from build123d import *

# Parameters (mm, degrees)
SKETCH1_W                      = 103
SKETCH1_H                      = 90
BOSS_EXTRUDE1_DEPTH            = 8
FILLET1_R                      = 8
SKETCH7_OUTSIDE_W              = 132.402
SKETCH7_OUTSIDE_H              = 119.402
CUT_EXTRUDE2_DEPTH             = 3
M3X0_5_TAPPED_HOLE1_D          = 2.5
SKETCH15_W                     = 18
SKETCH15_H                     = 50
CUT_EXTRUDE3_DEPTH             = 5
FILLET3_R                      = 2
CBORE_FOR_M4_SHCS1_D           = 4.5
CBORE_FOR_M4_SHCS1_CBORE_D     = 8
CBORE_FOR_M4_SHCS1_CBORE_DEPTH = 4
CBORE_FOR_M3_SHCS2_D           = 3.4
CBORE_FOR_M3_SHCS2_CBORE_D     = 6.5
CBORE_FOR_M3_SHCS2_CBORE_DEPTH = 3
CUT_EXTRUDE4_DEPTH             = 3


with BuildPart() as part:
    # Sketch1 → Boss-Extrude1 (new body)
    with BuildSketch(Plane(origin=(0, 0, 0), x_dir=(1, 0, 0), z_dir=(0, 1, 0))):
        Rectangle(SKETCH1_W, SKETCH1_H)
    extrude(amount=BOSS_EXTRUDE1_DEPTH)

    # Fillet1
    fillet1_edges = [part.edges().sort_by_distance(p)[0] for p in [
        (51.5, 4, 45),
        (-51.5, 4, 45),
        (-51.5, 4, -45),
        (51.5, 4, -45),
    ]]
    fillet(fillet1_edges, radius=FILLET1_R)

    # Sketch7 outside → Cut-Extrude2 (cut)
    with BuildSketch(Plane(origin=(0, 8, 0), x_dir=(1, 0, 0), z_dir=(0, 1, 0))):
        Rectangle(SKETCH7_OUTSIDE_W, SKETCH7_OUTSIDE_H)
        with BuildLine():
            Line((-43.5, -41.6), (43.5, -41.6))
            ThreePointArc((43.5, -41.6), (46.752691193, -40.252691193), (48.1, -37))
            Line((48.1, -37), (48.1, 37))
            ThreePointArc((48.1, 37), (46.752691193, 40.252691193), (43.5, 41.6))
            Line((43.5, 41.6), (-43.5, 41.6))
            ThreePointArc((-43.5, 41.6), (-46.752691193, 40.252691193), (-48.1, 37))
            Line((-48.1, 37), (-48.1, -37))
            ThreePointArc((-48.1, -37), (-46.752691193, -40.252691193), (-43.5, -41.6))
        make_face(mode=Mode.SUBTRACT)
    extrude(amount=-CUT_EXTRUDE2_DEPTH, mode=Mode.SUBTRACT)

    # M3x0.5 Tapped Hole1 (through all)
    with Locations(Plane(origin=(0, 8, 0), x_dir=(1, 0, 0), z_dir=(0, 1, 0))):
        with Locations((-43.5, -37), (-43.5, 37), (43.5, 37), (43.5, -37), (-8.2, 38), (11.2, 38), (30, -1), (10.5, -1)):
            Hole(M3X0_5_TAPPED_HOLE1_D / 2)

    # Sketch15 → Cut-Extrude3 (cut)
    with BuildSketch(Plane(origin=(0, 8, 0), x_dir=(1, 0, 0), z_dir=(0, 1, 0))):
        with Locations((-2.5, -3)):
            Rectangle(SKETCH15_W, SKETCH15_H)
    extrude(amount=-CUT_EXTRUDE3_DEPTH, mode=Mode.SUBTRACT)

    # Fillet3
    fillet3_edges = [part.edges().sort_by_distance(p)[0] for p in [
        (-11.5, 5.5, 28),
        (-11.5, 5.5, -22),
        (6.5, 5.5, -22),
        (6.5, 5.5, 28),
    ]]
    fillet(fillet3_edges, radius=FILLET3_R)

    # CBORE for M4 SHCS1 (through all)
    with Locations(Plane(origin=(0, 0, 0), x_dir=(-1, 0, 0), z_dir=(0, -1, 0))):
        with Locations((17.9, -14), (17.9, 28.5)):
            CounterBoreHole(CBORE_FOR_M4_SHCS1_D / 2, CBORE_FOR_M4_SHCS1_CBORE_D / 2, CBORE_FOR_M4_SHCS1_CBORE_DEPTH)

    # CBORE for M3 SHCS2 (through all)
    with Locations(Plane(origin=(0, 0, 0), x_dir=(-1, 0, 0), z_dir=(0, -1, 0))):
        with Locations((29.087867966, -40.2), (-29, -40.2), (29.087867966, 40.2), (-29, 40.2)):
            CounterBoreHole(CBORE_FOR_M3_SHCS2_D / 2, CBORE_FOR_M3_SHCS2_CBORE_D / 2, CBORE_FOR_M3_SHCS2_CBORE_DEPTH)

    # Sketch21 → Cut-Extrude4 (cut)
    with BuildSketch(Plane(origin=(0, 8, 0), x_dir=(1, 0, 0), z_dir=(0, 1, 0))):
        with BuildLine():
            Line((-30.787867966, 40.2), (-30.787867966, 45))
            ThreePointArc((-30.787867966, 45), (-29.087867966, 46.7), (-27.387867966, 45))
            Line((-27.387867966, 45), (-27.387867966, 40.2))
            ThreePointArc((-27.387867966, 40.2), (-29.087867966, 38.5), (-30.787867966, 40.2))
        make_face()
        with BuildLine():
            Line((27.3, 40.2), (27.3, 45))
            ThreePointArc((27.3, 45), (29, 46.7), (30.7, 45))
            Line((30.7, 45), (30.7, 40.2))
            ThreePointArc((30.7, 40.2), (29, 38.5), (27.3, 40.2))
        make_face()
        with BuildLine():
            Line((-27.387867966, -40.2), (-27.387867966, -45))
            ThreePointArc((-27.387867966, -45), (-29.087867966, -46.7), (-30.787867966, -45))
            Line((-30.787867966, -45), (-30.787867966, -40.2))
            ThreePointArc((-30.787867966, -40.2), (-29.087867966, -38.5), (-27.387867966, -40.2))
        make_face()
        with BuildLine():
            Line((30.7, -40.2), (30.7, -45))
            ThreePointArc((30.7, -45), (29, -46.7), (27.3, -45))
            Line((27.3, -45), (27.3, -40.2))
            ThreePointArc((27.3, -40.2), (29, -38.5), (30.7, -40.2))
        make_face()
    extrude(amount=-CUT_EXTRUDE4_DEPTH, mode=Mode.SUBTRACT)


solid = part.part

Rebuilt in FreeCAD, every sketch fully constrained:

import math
import FreeCAD as App
import Part
import Sketcher
from FreeCAD import Vector
Q = App.Units.Quantity


def edges_at(feature, points):
    """Names of the edges that pass closest to the given points."""
    edges = feature.Shape.Edges
    near = lambda p: min(range(len(edges)), key=lambda i: edges[i].distToShape(Part.Vertex(*p))[0])
    return sorted({f"Edge{near(p) + 1}" for p in points})


def add_polygon(sketch, points):
    """Adds a closed chain of lines whose ends are joined by coincident constraints."""
    first, n = sketch.GeometryCount, len(points)
    for a, b in zip(points, points[1:] + points[:1]):
        sketch.addGeometry(Part.LineSegment(App.Vector(*a, 0), App.Vector(*b, 0)), False)
    for i in range(n):
        sketch.addConstraint(Sketcher.Constraint("Coincident", first + i, 2, first + (i + 1) % n, 1))

doc = App.newDocument("Part")
body = doc.addObject("PartDesign::Body", "Body")

# Sketch on XZ plane
sketch1 = body.newObject("Sketcher::SketchObject", "Sketch")
sketch1.AttachmentSupport = (doc.getObject("XZ_Plane"), [""])
sketch1.MapMode = "FlatFace"
add_polygon(sketch1, [(-52, -45), (-52, 45), (52, 45), (52, -45)])  # lines 0-3
sketch1.addConstraint([
    Sketcher.Constraint("Vertical", 0),
    Sketcher.Constraint("Horizontal", 1),
    Sketcher.Constraint("Vertical", 2),
    Sketcher.Constraint("Horizontal", 3),
    Sketcher.Constraint("Symmetric", 0, 2, 2, 2, -1, 1),
    Sketcher.Constraint("DistanceX", 1, 1, 1, 2, Q("103 mm")),
    Sketcher.Constraint("DistanceY", 0, 1, 0, 2, Q("90 mm")),
])
pad1 = body.newObject("PartDesign::Pad", "Pad")
pad1.Profile = sketch1
pad1.Length = 8
pad1.Reversed = True
doc.recompute()

fillet = body.newObject("PartDesign::Fillet", "Fillet")
fillet.Base = (pad1, edges_at(pad1, [
    (51.5, 4, 45),
    (-51.5, 4, 45),
    (-51.5, 4, -45),
    (51.5, 4, -45),
]))
fillet.Radius = 8

# Sketch on XZ plane
sketch2 = body.newObject("Sketcher::SketchObject", "Sketch001")
sketch2.AttachmentSupport = (doc.getObject("XZ_Plane"), [""])
sketch2.MapMode = "FlatFace"
sketch2.AttachmentOffset = App.Placement(Vector(0, 0, -8), App.Rotation())
add_polygon(sketch2, [(-66.2, -59.7), (-66.2, 59.7), (66.2, 59.7), (66.2, -59.7)])  # lines 0-3
sketch2.addGeometry(Part.LineSegment(Vector(43.5, 41.6, 0), Vector(-43.5, 41.6, 0)), False)  # 4
sketch2.addGeometry(Part.ArcOfCircle(Part.Circle(Vector(-43.5, 37, 0), Vector(0, 0, 1), 4.6), math.radians(90), math.radians(180)), False)  # 5
sketch2.addGeometry(Part.LineSegment(Vector(-48.1, 37, 0), Vector(-48.1, -37, 0)), False)  # 6
sketch2.addGeometry(Part.ArcOfCircle(Part.Circle(Vector(-43.5, -37, 0), Vector(0, 0, 1), 4.6), math.radians(-180), math.radians(-90)), False)  # 7
sketch2.addGeometry(Part.LineSegment(Vector(-43.5, -41.6, 0), Vector(43.5, -41.6, 0)), False)  # 8
sketch2.addGeometry(Part.ArcOfCircle(Part.Circle(Vector(43.5, -37, 0), Vector(0, 0, 1), 4.6), math.radians(-90), math.radians(0)), False)  # 9
sketch2.addGeometry(Part.LineSegment(Vector(48.1, -37, 0), Vector(48.1, 37, 0)), False)  # 10
sketch2.addGeometry(Part.ArcOfCircle(Part.Circle(Vector(43.5, 37, 0), Vector(0, 0, 1), 4.6), math.radians(0), math.radians(90)), False)  # 11
sketch2.addConstraint([
    Sketcher.Constraint("Tangent", 4, 2, 5, 1),
    Sketcher.Constraint("Tangent", 5, 2, 6, 1),
    Sketcher.Constraint("Tangent", 6, 2, 7, 1),
    Sketcher.Constraint("Tangent", 7, 2, 8, 1),
    Sketcher.Constraint("Tangent", 8, 2, 9, 1),
    Sketcher.Constraint("Tangent", 9, 2, 10, 1),
    Sketcher.Constraint("Tangent", 10, 2, 11, 1),
    Sketcher.Constraint("Tangent", 11, 2, 4, 1),
    Sketcher.Constraint("Vertical", 0),
    Sketcher.Constraint("Horizontal", 1),
    Sketcher.Constraint("Vertical", 2),
    Sketcher.Constraint("Horizontal", 3),
    Sketcher.Constraint("Horizontal", 4),
    Sketcher.Constraint("Vertical", 6),
    Sketcher.Constraint("Horizontal", 8),
    Sketcher.Constraint("Vertical", 10),
    Sketcher.Constraint("Equal", 5, 7),
    Sketcher.Constraint("Equal", 7, 9),
    Sketcher.Constraint("Equal", 9, 11),
    Sketcher.Constraint("Symmetric", 5, 3, 9, 3, -1, 1),
    Sketcher.Constraint("Symmetric", 0, 2, 2, 2, -1, 1),
    Sketcher.Constraint("Radius", 5, Q("4.6 mm")),
    Sketcher.Constraint("DistanceX", 4, 2, 4, 1, Q("87 mm")),
    Sketcher.Constraint("DistanceY", 6, 2, 6, 1, Q("74 mm")),
    Sketcher.Constraint("DistanceX", 1, 1, 1, 2, Q("132.402 mm")),
    Sketcher.Constraint("DistanceY", 0, 1, 0, 2, Q("119.402 mm")),
])
pocket1 = body.newObject("PartDesign::Pocket", "Pocket")
pocket1.Profile = sketch2
pocket1.Length = 3
pocket1.Reversed = True

# Sketch on XZ plane
sketch3 = body.newObject("Sketcher::SketchObject", "Sketch002")
sketch3.AttachmentSupport = (doc.getObject("XZ_Plane"), [""])
sketch3.MapMode = "FlatFace"
sketch3.AttachmentOffset = App.Placement(Vector(0, 0, -8), App.Rotation())
sketch3.addGeometry([
    Part.Circle(Vector(-43.5, 37, 0), Vector(0, 0, 1), 1.2),  # 0
    Part.Circle(Vector(-43.5, -37, 0), Vector(0, 0, 1), 1.2),  # 1
    Part.Circle(Vector(43.5, -37, 0), Vector(0, 0, 1), 1.2),  # 2
    Part.Circle(Vector(43.5, 37, 0), Vector(0, 0, 1), 1.2),  # 3
    Part.Circle(Vector(-8.2, -38, 0), Vector(0, 0, 1), 1.2),  # 4
    Part.Circle(Vector(11.2, -38, 0), Vector(0, 0, 1), 1.2),  # 5
    Part.Circle(Vector(30, 1, 0), Vector(0, 0, 1), 1.2),  # 6
    Part.Circle(Vector(10.5, 1, 0), Vector(0, 0, 1), 1.2),  # 7
], False)
sketch3.addConstraint([
    Sketcher.Constraint("Equal", 0, 1),
    Sketcher.Constraint("Equal", 1, 2),
    Sketcher.Constraint("Equal", 2, 3),
    Sketcher.Constraint("Equal", 3, 4),
    Sketcher.Constraint("Equal", 4, 5),
    Sketcher.Constraint("Equal", 5, 6),
    Sketcher.Constraint("Equal", 6, 7),
    Sketcher.Constraint("Symmetric", 0, 3, 2, 3, -1, 1),
    Sketcher.Constraint("Symmetric", 1, 3, 3, 3, -1, 1),
    Sketcher.Constraint("Symmetric", 1, 3, 2, 3, -2),
    Sketcher.Constraint("Horizontal", 4, 3, 5, 3),
    Sketcher.Constraint("Horizontal", 6, 3, 7, 3),
    Sketcher.Constraint("Diameter", 0, Q("2.5 mm")),
    Sketcher.Constraint("DistanceY", -1, 1, 0, 3, Q("37 mm")),
    Sketcher.Constraint("DistanceY", 4, 3, -1, 1, Q("38 mm")),
    Sketcher.Constraint("DistanceX", -1, 1, 6, 3, Q("30 mm")),
    Sketcher.Constraint("DistanceY", -1, 1, 6, 3, Q("1 mm")),
    Sketcher.Constraint("DistanceX", 1, 3, 2, 3, Q("87 mm")),
    Sketcher.Constraint("DistanceX", 7, 3, 3, 3, Q("33 mm")),
    Sketcher.Constraint("DistanceX", 4, 3, -1, 1, Q("8.2 mm")),
    Sketcher.Constraint("DistanceX", -1, 1, 5, 3, Q("11.2 mm")),
])
doc.recompute()
hole = body.newObject("PartDesign::Hole", "Hole")
hole.Profile = sketch3
hole.ThreadType = "None"
hole.Diameter = 2.5
hole.DepthType = "ThroughAll"
hole.Reversed = True

# Sketch on XZ plane
sketch4 = body.newObject("Sketcher::SketchObject", "Sketch003")
sketch4.AttachmentSupport = (doc.getObject("XZ_Plane"), [""])
sketch4.MapMode = "FlatFace"
sketch4.AttachmentOffset = App.Placement(Vector(0, 0, -8), App.Rotation())
add_polygon(sketch4, [(-12, -22), (-12, 28), (6, 28), (6, -22)])  # lines 0-3
sketch4.addConstraint([
    Sketcher.Constraint("Vertical", 0),
    Sketcher.Constraint("Horizontal", 1),
    Sketcher.Constraint("Vertical", 2),
    Sketcher.Constraint("Horizontal", 3),
    Sketcher.Constraint("DistanceX", 1, 1, 1, 2, Q("18 mm")),
    Sketcher.Constraint("DistanceY", 0, 1, 0, 2, Q("50 mm")),
    Sketcher.Constraint("DistanceY", -1, 1, 0, 2, Q("28 mm")),
    Sketcher.Constraint("DistanceX", 0, 2, -1, 1, Q("11.5 mm")),
])
pocket2 = body.newObject("PartDesign::Pocket", "Pocket001")
pocket2.Profile = sketch4
pocket2.Length = 5
pocket2.Reversed = True
doc.recompute()

fillet2 = body.newObject("PartDesign::Fillet", "Fillet001")
fillet2.Base = (pocket2, edges_at(pocket2, [
    (-11.5, 5.5, 28),
    (-11.5, 5.5, -22),
    (6.5, 5.5, -22),
    (6.5, 5.5, 28),
]))
fillet2.Radius = 2

# Sketch on XZ plane
sketch5 = body.newObject("Sketcher::SketchObject", "Sketch004")
sketch5.AttachmentSupport = (doc.getObject("XZ_Plane"), [""])
sketch5.MapMode = "FlatFace"
sketch5.addGeometry([
    Part.Circle(Vector(-17.9, 14, 0), Vector(0, 0, 1), 2.2),
    Part.Circle(Vector(-17.9, -28.5, 0), Vector(0, 0, 1), 2.2),
], False)
sketch5.addConstraint([
    Sketcher.Constraint("Equal", 0, 1),
    Sketcher.Constraint("Vertical", 0, 3, 1, 3),
    Sketcher.Constraint("Diameter", 0, Q("4.5 mm")),
    Sketcher.Constraint("DistanceY", -1, 1, 0, 3, Q("14 mm")),
    Sketcher.Constraint("DistanceX", 0, 3, -1, 1, Q("17.9 mm")),
    Sketcher.Constraint("DistanceY", 1, 3, -1, 1, Q("28.5 mm")),
])
doc.recompute()
hole2 = body.newObject("PartDesign::Hole", "Hole001")
hole2.Profile = sketch5
hole2.ThreadType = "None"
hole2.Diameter = 4.5
hole2.DepthType = "ThroughAll"
hole2.HoleCutType = "Counterbore"
hole2.HoleCutDiameter = 8
hole2.HoleCutDepth = 4

# Sketch on XZ plane
sketch6 = body.newObject("Sketcher::SketchObject", "Sketch005")
sketch6.AttachmentSupport = (doc.getObject("XZ_Plane"), [""])
sketch6.MapMode = "FlatFace"
sketch6.addGeometry([
    Part.Circle(Vector(-29.1, 40.2, 0), Vector(0, 0, 1), 1.7),
    Part.Circle(Vector(29, 40.2, 0), Vector(0, 0, 1), 1.7),
    Part.Circle(Vector(-29.1, -40.2, 0), Vector(0, 0, 1), 1.7),
    Part.Circle(Vector(29, -40.2, 0), Vector(0, 0, 1), 1.7),
], False)
sketch6.addConstraint([
    Sketcher.Constraint("Equal", 0, 1),
    Sketcher.Constraint("Equal", 1, 2),
    Sketcher.Constraint("Equal", 2, 3),
    Sketcher.Constraint("Symmetric", 0, 3, 2, 3, -1),
    Sketcher.Constraint("Symmetric", 1, 3, 3, 3, -1),
    Sketcher.Constraint("Horizontal", 0, 3, 1, 3),
    Sketcher.Constraint("Diameter", 0, Q("3.4 mm")),
    Sketcher.Constraint("DistanceX", -1, 1, 1, 3, Q("29 mm")),
    Sketcher.Constraint("DistanceY", -1, 1, 0, 3, Q("40.2 mm")),
    Sketcher.Constraint("DistanceX", 0, 3, -1, 1, Q("29.087868 mm")),
])
doc.recompute()
hole3 = body.newObject("PartDesign::Hole", "Hole002")
hole3.Profile = sketch6
hole3.ThreadType = "None"
hole3.Diameter = 3.4
hole3.DepthType = "ThroughAll"
hole3.HoleCutType = "Counterbore"
hole3.HoleCutDiameter = 6.5
hole3.HoleCutDepth = 3

# Sketch on XZ plane
sketch7 = body.newObject("Sketcher::SketchObject", "Sketch006")
sketch7.AttachmentSupport = (doc.getObject("XZ_Plane"), [""])
sketch7.MapMode = "FlatFace"
sketch7.AttachmentOffset = App.Placement(Vector(0, 0, -8), App.Rotation())
sketch7.addGeometry([
    Part.LineSegment(Vector(-30.8, -45, 0), Vector(-30.8, -40.2, 0)),  # 0
    Part.ArcOfCircle(Part.Circle(Vector(-29.1, -40.2, 0), Vector(0, 0, 1), 1.7), math.radians(0), math.radians(180)),  # 1
    Part.LineSegment(Vector(-27.4, -40.2, 0), Vector(-27.4, -45, 0)),  # 2
    Part.ArcOfCircle(Part.Circle(Vector(-29.1, -45, 0), Vector(0, 0, 1), 1.7), math.radians(180), math.radians(360)),  # 3
    Part.LineSegment(Vector(27.3, -45, 0), Vector(27.3, -40.2, 0)),  # 4
    Part.ArcOfCircle(Part.Circle(Vector(29, -40.2, 0), Vector(0, 0, 1), 1.7), math.radians(0), math.radians(180)),  # 5
    Part.LineSegment(Vector(30.7, -40.2, 0), Vector(30.7, -45, 0)),  # 6
    Part.ArcOfCircle(Part.Circle(Vector(29, -45, 0), Vector(0, 0, 1), 1.7), math.radians(180), math.radians(360)),  # 7
    Part.LineSegment(Vector(-27.4, 45, 0), Vector(-27.4, 40.2, 0)),  # 8
    Part.ArcOfCircle(Part.Circle(Vector(-29.1, 40.2, 0), Vector(0, 0, 1), 1.7), math.radians(180), math.radians(360)),  # 9
    Part.LineSegment(Vector(-30.8, 40.2, 0), Vector(-30.8, 45, 0)),  # 10
    Part.ArcOfCircle(Part.Circle(Vector(-29.1, 45, 0), Vector(0, 0, 1), 1.7), math.radians(0), math.radians(180)),  # 11
    Part.LineSegment(Vector(30.7, 45, 0), Vector(30.7, 40.2, 0)),  # 12
    Part.ArcOfCircle(Part.Circle(Vector(29, 40.2, 0), Vector(0, 0, 1), 1.7), math.radians(180), math.radians(360)),  # 13
    Part.LineSegment(Vector(27.3, 40.2, 0), Vector(27.3, 45, 0)),  # 14
    Part.ArcOfCircle(Part.Circle(Vector(29, 45, 0), Vector(0, 0, 1), 1.7), math.radians(0), math.radians(180)),  # 15
], False)
sketch7.addConstraint([
    Sketcher.Constraint("Tangent", 0, 2, 1, 2),
    Sketcher.Constraint("Tangent", 1, 1, 2, 1),
    Sketcher.Constraint("Tangent", 2, 2, 3, 2),
    Sketcher.Constraint("Tangent", 3, 1, 0, 1),
    Sketcher.Constraint("Tangent", 4, 2, 5, 2),
    Sketcher.Constraint("Tangent", 5, 1, 6, 1),
    Sketcher.Constraint("Tangent", 6, 2, 7, 2),
    Sketcher.Constraint("Tangent", 7, 1, 4, 1),
    Sketcher.Constraint("Tangent", 8, 2, 9, 2),
    Sketcher.Constraint("Tangent", 9, 1, 10, 1),
    Sketcher.Constraint("Tangent", 10, 2, 11, 2),
    Sketcher.Constraint("Tangent", 11, 1, 8, 1),
    Sketcher.Constraint("Tangent", 12, 2, 13, 2),
    Sketcher.Constraint("Tangent", 13, 1, 14, 1),
    Sketcher.Constraint("Tangent", 14, 2, 15, 2),
    Sketcher.Constraint("Tangent", 15, 1, 12, 1),
    Sketcher.Constraint("Vertical", 0),
    Sketcher.Constraint("Vertical", 2),
    Sketcher.Constraint("Vertical", 4),
    Sketcher.Constraint("Vertical", 6),
    Sketcher.Constraint("Vertical", 8),
    Sketcher.Constraint("Vertical", 10),
    Sketcher.Constraint("Vertical", 12),
    Sketcher.Constraint("Vertical", 14),
    Sketcher.Constraint("Equal", 3, 5),
    Sketcher.Constraint("Equal", 7, 9),
    Sketcher.Constraint("Equal", 11, 13),
    Sketcher.Constraint("Symmetric", 1, 3, 9, 3, -1),
    Sketcher.Constraint("Symmetric", 5, 3, 13, 3, -1),
    Sketcher.Constraint("Horizontal", 1, 3, 5, 3),
    Sketcher.Constraint("Horizontal", 3, 3, 7, 3),
    Sketcher.Constraint("Horizontal", 11, 3, 15, 3),
    Sketcher.Constraint("Equal", 6, 8),
    Sketcher.Constraint("Radius", 1, Q("1.7 mm")),
    Sketcher.Constraint("DistanceY", 0, 1, 0, 2, Q("4.8 mm")),
    Sketcher.Constraint("DistanceY", 3, 3, -1, 1, Q("45 mm")),
    Sketcher.Constraint("DistanceX", -1, 1, 5, 3, Q("29 mm")),
    Sketcher.Constraint("DistanceX", 1, 3, -1, 1, Q("29.087868 mm")),
])
pocket3 = body.newObject("PartDesign::Pocket", "Pocket002")
pocket3.Profile = sketch7
pocket3.Length = 3
pocket3.Reversed = True

doc.recompute()
